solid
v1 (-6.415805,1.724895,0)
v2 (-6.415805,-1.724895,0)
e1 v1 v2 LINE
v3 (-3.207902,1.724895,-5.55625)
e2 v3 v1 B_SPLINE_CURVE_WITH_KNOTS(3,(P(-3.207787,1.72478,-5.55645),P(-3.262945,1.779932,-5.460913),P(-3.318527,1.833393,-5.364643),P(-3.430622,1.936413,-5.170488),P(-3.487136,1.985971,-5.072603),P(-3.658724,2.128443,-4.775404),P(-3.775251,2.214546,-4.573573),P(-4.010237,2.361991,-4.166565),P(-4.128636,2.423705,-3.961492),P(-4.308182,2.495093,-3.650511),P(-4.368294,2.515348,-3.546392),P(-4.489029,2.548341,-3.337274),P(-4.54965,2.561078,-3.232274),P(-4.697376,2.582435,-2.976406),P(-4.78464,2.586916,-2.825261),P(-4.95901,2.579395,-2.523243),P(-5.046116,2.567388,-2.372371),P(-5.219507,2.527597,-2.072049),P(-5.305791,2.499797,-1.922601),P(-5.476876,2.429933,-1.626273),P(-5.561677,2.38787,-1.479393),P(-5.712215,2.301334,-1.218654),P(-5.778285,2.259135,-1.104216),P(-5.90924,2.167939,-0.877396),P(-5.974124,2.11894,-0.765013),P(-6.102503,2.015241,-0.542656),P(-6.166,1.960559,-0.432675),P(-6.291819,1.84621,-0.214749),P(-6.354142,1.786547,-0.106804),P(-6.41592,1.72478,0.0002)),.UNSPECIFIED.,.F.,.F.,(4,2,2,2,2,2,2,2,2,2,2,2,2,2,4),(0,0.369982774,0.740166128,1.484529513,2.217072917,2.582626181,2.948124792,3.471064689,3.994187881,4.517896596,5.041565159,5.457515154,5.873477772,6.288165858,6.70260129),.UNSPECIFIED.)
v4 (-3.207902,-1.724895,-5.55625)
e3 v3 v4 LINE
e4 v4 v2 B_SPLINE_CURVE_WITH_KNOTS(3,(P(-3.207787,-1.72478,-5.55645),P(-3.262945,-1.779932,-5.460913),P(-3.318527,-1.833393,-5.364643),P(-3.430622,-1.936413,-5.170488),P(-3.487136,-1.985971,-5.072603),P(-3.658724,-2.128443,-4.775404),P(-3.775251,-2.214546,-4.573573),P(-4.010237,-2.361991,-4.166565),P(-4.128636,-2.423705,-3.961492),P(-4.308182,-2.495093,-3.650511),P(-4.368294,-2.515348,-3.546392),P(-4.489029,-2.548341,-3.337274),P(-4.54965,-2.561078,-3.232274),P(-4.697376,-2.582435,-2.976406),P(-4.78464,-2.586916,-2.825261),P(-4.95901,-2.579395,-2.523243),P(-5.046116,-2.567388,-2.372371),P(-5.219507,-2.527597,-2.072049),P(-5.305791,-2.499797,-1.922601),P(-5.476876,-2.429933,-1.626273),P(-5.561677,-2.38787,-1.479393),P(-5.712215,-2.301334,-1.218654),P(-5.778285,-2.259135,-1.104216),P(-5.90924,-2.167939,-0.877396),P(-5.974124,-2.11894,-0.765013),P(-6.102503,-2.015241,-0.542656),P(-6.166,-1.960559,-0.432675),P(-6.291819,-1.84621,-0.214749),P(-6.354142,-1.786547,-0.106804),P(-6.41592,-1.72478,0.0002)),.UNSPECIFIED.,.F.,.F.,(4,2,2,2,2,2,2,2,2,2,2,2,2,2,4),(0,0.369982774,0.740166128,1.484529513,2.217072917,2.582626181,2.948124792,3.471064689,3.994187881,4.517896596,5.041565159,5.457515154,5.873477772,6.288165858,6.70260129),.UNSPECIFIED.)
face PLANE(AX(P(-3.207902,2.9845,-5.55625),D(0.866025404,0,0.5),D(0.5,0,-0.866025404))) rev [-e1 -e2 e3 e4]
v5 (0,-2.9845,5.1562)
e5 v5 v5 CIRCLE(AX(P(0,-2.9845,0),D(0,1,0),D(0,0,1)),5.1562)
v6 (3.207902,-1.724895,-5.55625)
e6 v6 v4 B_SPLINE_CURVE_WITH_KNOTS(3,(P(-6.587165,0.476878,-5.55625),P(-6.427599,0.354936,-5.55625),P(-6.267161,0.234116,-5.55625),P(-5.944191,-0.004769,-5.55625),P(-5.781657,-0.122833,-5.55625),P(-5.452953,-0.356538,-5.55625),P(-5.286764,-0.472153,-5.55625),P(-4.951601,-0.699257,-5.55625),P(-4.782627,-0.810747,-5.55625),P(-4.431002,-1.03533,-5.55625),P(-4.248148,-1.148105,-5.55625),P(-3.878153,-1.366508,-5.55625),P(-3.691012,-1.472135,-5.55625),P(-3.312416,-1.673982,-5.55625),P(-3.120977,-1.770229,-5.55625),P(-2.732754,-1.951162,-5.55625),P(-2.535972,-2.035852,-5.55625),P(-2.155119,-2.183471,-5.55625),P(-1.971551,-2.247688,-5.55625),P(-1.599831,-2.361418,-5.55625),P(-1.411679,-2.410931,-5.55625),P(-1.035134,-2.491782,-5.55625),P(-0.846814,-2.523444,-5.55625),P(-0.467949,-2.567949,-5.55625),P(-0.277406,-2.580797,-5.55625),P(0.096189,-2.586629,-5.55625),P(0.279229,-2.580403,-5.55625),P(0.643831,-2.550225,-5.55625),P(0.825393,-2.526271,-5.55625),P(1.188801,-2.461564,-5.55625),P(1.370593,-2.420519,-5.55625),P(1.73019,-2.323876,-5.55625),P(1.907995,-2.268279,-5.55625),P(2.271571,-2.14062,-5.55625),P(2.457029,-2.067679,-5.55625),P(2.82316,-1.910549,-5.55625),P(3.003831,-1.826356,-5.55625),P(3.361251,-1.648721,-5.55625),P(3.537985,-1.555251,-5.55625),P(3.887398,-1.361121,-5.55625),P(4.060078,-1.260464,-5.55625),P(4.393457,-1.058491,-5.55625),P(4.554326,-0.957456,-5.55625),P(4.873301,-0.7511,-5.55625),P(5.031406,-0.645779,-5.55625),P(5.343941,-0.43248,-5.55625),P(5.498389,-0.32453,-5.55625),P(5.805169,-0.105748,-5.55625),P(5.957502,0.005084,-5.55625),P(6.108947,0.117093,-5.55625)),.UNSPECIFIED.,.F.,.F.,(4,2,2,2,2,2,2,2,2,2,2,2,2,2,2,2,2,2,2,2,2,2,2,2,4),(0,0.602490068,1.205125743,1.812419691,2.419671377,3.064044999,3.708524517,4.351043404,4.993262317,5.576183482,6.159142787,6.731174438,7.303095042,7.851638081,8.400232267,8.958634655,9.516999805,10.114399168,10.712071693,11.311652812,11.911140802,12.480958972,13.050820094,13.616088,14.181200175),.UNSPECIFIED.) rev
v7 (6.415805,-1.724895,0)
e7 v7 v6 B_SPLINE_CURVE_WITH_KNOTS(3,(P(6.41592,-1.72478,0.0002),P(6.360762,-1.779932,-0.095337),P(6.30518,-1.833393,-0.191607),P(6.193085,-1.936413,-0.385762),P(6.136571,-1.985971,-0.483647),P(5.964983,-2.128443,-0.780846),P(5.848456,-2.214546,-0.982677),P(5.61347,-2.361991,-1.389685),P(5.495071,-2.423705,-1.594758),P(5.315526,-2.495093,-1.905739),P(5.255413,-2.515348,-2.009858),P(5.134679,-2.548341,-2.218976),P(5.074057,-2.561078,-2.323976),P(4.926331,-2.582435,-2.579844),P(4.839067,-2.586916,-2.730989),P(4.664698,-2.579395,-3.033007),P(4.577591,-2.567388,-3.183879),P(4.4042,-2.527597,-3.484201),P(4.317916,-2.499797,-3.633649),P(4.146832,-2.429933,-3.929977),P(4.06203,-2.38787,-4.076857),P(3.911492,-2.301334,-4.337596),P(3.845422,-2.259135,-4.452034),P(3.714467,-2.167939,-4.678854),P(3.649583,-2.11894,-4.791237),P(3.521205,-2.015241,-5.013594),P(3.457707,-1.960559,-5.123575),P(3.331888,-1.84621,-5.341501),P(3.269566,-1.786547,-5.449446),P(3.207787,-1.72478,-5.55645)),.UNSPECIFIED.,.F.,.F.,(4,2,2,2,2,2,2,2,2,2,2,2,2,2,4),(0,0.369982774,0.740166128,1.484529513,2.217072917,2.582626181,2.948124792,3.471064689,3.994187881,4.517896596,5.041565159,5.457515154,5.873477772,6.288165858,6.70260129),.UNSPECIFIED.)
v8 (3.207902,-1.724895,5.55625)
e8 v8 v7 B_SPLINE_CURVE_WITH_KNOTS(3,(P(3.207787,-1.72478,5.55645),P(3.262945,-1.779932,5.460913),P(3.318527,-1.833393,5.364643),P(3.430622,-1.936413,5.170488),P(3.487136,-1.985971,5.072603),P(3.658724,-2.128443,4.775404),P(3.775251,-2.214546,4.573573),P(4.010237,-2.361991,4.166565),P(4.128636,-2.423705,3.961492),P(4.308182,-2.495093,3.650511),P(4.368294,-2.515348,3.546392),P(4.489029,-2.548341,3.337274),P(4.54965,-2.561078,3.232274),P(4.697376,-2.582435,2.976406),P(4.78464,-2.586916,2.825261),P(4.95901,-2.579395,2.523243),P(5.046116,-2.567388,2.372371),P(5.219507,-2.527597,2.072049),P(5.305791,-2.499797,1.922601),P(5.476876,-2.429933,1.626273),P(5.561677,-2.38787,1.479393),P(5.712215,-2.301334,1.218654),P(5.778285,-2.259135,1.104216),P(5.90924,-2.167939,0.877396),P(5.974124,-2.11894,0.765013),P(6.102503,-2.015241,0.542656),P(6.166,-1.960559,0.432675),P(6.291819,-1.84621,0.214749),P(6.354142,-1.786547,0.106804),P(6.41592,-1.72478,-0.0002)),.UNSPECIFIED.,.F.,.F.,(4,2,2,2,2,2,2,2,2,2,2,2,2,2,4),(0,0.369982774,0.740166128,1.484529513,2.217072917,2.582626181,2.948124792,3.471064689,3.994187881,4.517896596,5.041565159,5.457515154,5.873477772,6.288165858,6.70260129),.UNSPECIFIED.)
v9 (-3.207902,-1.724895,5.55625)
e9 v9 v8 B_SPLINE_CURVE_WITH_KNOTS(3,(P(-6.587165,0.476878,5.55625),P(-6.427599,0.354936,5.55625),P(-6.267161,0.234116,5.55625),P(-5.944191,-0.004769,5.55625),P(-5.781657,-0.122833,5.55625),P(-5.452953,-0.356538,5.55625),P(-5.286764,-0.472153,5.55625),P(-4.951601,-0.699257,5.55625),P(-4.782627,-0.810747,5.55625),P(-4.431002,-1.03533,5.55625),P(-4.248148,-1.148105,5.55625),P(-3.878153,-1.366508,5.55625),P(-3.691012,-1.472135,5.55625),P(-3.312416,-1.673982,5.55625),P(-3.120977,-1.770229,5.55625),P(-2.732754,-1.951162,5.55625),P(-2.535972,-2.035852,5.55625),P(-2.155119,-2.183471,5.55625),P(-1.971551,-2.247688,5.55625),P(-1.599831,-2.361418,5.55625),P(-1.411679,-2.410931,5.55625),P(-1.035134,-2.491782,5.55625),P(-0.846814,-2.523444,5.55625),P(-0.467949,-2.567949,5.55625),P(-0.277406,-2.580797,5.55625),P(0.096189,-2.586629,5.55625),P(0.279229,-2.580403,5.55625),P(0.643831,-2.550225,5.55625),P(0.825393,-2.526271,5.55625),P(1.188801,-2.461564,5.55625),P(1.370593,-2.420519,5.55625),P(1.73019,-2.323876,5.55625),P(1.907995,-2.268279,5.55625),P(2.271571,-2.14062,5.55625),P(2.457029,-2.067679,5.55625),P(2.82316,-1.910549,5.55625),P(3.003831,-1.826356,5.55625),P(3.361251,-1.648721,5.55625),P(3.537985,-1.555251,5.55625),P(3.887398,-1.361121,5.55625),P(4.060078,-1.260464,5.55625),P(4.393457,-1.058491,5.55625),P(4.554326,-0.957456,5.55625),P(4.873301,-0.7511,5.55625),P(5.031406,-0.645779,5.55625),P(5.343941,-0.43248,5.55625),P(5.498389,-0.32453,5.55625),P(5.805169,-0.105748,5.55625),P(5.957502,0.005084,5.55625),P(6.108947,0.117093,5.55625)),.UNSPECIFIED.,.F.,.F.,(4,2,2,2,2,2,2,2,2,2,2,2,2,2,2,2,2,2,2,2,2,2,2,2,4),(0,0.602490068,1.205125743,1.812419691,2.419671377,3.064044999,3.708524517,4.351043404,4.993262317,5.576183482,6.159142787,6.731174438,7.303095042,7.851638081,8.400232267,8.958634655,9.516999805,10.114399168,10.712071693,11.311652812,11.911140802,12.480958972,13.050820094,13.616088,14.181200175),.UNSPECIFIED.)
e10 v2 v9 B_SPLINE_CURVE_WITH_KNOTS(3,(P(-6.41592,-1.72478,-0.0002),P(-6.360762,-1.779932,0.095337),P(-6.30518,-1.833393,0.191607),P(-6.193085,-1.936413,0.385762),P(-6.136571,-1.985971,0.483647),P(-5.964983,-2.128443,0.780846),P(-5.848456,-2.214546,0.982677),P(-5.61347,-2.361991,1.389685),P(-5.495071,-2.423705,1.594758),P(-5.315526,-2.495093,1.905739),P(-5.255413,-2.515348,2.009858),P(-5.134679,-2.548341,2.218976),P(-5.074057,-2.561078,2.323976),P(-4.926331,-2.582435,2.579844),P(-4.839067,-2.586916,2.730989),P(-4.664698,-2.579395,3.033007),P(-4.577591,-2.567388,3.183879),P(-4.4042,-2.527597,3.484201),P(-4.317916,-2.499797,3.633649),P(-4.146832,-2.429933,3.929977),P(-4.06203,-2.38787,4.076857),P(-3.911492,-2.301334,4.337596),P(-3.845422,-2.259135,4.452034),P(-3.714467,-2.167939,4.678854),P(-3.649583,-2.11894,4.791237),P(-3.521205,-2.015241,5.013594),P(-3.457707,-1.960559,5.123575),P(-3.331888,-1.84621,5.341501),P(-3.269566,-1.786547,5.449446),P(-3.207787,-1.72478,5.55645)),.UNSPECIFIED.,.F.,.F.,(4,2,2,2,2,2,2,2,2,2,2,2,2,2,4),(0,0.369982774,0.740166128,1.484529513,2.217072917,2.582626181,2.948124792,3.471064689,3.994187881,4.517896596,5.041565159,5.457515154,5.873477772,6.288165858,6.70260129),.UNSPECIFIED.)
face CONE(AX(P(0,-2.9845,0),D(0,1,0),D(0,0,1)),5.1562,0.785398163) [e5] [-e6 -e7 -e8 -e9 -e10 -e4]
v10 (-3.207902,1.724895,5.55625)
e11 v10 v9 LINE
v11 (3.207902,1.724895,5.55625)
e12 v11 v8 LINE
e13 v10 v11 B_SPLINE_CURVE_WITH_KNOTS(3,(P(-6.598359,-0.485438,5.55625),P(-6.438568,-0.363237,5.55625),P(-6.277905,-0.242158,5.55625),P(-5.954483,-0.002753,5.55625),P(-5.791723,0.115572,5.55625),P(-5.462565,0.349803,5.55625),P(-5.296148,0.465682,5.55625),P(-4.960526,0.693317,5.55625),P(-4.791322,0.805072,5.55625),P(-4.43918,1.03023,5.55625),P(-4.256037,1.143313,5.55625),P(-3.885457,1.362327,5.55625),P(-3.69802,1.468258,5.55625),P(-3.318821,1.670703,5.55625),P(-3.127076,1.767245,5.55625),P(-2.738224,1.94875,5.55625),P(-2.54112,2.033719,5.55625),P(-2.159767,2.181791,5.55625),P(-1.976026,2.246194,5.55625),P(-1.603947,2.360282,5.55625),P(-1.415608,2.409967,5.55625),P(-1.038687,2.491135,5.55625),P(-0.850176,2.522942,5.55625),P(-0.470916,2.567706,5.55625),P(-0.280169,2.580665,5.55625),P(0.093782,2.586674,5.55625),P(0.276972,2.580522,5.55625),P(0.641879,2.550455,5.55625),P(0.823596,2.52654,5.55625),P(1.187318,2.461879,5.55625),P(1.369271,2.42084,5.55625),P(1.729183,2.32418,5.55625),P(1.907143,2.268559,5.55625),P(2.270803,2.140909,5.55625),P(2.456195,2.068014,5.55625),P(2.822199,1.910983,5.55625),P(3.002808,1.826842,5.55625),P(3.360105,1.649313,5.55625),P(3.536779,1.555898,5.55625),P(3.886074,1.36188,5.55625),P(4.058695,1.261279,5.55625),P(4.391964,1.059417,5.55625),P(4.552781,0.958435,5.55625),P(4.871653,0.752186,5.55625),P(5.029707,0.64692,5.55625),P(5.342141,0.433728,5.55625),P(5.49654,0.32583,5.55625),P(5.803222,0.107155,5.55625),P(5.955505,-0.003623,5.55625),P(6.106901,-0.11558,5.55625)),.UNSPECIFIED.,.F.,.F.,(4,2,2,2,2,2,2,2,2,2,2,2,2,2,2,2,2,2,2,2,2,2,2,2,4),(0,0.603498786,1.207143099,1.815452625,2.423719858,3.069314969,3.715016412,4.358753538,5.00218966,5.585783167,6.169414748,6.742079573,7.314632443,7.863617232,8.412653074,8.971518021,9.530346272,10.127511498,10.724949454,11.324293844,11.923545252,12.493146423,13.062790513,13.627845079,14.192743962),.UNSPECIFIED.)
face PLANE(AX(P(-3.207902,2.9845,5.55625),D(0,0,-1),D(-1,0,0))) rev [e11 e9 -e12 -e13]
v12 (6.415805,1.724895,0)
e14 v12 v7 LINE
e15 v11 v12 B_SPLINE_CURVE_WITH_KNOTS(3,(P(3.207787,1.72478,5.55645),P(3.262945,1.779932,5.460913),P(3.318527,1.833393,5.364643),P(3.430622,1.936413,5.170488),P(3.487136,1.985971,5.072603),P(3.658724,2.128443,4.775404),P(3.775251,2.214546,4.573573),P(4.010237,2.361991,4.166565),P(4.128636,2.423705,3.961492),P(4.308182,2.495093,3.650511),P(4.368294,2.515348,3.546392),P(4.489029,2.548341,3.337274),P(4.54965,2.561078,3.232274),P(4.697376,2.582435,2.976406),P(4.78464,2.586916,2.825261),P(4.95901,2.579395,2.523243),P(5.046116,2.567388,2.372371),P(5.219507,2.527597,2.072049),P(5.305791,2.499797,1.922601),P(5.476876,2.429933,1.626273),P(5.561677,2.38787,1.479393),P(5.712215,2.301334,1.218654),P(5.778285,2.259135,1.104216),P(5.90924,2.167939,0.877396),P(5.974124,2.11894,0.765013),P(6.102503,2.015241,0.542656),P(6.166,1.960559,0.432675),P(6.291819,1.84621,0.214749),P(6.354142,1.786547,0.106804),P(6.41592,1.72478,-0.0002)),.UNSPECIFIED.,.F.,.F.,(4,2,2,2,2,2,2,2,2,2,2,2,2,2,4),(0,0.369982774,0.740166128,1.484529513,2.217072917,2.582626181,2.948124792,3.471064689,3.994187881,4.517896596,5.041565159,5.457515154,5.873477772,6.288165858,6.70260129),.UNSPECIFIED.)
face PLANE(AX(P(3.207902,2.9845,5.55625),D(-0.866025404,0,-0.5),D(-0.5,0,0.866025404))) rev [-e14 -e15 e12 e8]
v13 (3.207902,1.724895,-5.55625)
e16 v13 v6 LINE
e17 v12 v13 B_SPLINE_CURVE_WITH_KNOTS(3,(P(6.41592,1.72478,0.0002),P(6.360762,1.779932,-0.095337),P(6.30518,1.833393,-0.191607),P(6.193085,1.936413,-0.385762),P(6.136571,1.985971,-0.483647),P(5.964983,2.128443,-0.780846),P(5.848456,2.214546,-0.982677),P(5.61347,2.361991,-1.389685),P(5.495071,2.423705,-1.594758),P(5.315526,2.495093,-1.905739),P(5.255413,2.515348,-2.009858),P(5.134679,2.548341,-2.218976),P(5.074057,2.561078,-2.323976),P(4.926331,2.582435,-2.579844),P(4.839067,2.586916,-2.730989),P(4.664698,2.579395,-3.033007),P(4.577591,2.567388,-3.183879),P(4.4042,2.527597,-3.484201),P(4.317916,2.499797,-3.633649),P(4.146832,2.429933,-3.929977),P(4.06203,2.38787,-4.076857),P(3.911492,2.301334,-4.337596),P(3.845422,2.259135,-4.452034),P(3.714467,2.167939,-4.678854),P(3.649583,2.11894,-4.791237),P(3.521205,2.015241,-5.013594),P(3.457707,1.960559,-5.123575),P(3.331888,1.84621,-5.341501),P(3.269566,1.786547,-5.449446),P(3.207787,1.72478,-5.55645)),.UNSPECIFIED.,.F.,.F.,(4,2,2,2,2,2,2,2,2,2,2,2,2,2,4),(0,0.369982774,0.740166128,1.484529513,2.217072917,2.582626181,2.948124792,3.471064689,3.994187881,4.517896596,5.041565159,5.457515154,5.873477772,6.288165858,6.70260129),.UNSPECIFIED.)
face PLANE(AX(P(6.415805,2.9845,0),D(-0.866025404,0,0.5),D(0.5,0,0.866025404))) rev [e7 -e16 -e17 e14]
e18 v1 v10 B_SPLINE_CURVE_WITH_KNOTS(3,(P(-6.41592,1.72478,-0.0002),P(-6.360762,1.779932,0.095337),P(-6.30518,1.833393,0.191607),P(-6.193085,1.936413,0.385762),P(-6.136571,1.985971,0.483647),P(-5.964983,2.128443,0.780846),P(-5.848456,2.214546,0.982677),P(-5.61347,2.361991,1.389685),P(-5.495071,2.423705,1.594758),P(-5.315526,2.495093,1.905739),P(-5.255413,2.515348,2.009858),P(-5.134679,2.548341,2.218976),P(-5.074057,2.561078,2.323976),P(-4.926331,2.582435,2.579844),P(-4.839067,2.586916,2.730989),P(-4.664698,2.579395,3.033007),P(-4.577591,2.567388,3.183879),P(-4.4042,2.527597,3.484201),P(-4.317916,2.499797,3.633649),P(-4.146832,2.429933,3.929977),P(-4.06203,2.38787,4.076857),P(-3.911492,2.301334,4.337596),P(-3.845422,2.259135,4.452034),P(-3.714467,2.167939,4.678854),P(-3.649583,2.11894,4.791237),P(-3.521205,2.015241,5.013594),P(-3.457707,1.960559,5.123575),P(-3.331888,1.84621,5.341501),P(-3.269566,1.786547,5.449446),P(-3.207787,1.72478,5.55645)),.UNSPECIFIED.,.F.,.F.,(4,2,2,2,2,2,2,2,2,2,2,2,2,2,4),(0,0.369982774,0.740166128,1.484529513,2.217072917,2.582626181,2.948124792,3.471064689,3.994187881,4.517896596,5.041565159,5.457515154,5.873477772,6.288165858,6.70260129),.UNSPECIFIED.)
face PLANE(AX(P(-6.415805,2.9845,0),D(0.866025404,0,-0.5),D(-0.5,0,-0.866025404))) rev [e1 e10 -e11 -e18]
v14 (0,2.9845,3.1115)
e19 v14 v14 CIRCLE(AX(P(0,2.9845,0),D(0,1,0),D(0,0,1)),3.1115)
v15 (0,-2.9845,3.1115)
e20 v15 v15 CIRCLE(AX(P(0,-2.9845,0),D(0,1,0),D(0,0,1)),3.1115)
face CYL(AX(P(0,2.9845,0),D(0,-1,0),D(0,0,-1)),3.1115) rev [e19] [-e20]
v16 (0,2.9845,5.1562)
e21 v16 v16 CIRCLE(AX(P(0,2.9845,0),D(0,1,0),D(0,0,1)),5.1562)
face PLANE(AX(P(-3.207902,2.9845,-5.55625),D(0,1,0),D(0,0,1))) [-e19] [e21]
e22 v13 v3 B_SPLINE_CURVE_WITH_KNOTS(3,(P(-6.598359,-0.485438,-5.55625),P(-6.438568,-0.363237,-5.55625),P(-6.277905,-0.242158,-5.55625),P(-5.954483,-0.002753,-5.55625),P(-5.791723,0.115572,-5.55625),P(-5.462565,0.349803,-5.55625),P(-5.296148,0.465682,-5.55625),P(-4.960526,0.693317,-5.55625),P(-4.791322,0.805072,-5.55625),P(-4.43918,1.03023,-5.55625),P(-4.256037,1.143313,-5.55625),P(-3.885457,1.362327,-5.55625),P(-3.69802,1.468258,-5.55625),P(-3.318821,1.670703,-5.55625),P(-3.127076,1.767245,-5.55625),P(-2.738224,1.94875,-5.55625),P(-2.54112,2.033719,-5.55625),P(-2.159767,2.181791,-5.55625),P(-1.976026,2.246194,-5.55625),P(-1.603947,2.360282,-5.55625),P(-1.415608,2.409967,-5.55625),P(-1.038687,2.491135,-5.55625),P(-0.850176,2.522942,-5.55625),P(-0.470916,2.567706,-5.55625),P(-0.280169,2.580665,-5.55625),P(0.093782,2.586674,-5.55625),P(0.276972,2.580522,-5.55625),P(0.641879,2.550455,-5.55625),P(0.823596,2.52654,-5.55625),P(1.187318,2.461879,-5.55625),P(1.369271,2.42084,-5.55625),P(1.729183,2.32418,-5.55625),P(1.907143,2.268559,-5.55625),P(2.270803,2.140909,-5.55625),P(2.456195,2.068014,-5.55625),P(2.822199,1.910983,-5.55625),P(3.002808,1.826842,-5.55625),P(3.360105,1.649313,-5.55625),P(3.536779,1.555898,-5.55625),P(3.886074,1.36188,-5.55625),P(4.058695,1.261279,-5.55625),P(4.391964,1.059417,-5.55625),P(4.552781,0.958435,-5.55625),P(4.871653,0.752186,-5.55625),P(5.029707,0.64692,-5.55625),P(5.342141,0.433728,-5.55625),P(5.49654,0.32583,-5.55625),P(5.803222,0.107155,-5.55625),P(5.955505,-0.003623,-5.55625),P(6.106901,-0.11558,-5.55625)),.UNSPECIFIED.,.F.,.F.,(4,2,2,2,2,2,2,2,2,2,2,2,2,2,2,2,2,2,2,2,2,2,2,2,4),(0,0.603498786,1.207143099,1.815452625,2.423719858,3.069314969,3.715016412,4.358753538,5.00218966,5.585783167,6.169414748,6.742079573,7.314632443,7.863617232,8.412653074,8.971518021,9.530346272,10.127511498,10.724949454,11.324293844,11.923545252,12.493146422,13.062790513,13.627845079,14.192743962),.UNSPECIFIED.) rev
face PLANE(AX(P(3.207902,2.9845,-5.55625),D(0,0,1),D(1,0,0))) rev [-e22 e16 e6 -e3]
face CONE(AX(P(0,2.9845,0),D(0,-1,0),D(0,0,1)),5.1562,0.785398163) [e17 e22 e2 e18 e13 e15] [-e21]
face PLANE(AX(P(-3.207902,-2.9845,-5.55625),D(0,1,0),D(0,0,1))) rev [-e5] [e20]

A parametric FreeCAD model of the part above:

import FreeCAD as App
import Part
import Sketcher
from FreeCAD import Vector
Q = App.Units.Quantity


def add_polygon(sketch, points):
    """Adds a closed chain of lines whose ends are joined by coincident constraints."""
    first, n = sketch.GeometryCount, len(points)
    for a, b in zip(points, points[1:] + points[:1]):
        sketch.addGeometry(Part.LineSegment(App.Vector(*a, 0), App.Vector(*b, 0)), False)
    for i in range(n):
        sketch.addConstraint(Sketcher.Constraint("Coincident", first + i, 2, first + (i + 1) % n, 1))

doc = App.newDocument("Part")
body = doc.addObject("PartDesign::Body", "Body")

sketch1 = body.newObject("Sketcher::SketchObject", "Sketch")
sketch1.AttachmentSupport = (doc.getObject("XZ_Plane"), [""])
sketch1.MapMode = "FlatFace"
add_polygon(sketch1, [(-3.2, -5.6), (-6.4, 0), (-3.2, 5.6), (3.2, 5.6), (6.4, 0), (3.2, -5.6)])
sketch1.addGeometry(Part.Circle(Vector(0, 0, 0), Vector(0, 0, 1), 3.1), False)
sketch1.addConstraint(Sketcher.Constraint("Horizontal", 2))
sketch1.addConstraint(Sketcher.Constraint("Horizontal", 5))
sketch1.addConstraint(Sketcher.Constraint("Coincident", 6, 3, -1, 1))
sketch1.addConstraint(Sketcher.Constraint("Symmetric", 0, 2, 3, 2, -1, 1))
sketch1.addConstraint(Sketcher.Constraint("Symmetric", 1, 2, 4, 2, -1, 1))
sketch1.addConstraint(Sketcher.Constraint("PointOnObject", 0, 2, -1))
sketch1.addConstraint(Sketcher.Constraint("Parallel", 0, 3))
sketch1.addConstraint(Sketcher.Constraint("Vertical", 2, 2, 4, 2))
sketch1.addConstraint(Sketcher.Constraint("Diameter", 6, Q("0.245 in")))
sketch1.addConstraint(Sketcher.Constraint("Angle", 0, Q("120 deg")))
sketch1.addConstraint(Sketcher.Constraint("DistanceY", -1, 1, 1, 2, Q("0.21875 in")))
sketch1.addConstraint(Sketcher.Constraint("DistanceX", 2, 1, 2, 2, 6.415805))
pad1 = body.newObject("PartDesign::Pad", "Pad")
pad1.Profile = sketch1
pad1.Length = Q("0.235 in")
pad1.Midplane = True

sketch2 = body.newObject("Sketcher::SketchObject", "Sketch001")
sketch2.AttachmentSupport = (doc.getObject("XZ_Plane"), [""])
sketch2.MapMode = "FlatFace"
sketch2.AttachmentOffset = App.Placement(Vector(0, 0, -0.1175 * 25.4), App.Rotation())
add_polygon(sketch2, [(-15, -14), (-15, 14), (15, 14), (15, -14)])
sketch2.addGeometry(Part.Circle(Vector(0, 0, 0), Vector(0, 0, 1), 5), False)
sketch2.addConstraint(Sketcher.Constraint("Vertical", 0))
sketch2.addConstraint(Sketcher.Constraint("Horizontal", 1))
sketch2.addConstraint(Sketcher.Constraint("Vertical", 2))
sketch2.addConstraint(Sketcher.Constraint("Horizontal", 3))
sketch2.addConstraint(Sketcher.Constraint("Coincident", 4, 3, -1, 1))
sketch2.addConstraint(Sketcher.Constraint("Symmetric", 0, 2, 2, 2, -1, 1))
sketch2.addConstraint(Sketcher.Constraint("Diameter", 4, Q("0.406 in")))
sketch2.addConstraint(Sketcher.Constraint("DistanceX", 1, 1, 1, 2, 30.368))
sketch2.addConstraint(Sketcher.Constraint("DistanceY", 0, 1, 0, 2, 28.648))
pocket1 = body.newObject("PartDesign::Pocket", "Pocket")
pocket1.Profile = sketch2
pocket1.Length = Q("0.235 in")
pocket1.Reversed = True
pocket1.TaperAngle = 45
doc.recompute()

mirrored = body.newObject("PartDesign::Mirrored", "Mirrored")
mirrored.Originals = [pocket1]
mirrored.MirrorPlane = (doc.getObject("XZ_Plane"), [""])
body.Tip = mirrored

doc.recompute()
